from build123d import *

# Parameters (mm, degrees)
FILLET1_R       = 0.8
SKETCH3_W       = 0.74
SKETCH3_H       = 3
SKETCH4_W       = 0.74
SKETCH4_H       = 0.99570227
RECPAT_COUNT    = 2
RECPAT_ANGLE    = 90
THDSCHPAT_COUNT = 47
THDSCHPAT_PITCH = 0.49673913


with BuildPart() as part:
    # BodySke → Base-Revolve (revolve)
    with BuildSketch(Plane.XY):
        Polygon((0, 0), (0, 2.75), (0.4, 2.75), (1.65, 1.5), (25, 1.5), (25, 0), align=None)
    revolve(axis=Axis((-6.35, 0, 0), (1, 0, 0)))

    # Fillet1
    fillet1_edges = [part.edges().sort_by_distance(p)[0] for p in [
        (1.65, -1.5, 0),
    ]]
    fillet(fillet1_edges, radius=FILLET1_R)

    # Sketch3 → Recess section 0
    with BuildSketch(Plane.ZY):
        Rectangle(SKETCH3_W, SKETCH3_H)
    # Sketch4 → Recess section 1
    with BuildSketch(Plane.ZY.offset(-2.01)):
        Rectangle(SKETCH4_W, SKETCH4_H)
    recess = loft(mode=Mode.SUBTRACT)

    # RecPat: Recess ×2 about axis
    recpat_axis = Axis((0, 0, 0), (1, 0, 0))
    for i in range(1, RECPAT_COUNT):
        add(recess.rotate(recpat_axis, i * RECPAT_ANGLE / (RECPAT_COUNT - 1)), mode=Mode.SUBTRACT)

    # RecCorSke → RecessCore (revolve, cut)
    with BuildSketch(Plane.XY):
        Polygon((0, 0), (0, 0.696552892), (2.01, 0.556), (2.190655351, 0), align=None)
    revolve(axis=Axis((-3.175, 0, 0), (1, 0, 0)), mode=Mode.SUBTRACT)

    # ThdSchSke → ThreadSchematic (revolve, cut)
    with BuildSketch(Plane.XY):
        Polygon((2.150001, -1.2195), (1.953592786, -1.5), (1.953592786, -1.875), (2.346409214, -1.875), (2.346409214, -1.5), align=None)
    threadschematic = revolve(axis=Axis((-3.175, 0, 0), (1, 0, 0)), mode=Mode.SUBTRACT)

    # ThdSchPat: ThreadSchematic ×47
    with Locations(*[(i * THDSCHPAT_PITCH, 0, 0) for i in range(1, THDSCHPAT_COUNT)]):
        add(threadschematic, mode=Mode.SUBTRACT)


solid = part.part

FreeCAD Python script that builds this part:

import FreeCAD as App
import Part
import Sketcher
Q = App.Units.Quantity


def edges_at(feature, points):
    """Names of the edges that pass closest to the given points."""
    edges = feature.Shape.Edges
    near = lambda p: min(range(len(edges)), key=lambda i: edges[i].distToShape(Part.Vertex(*p))[0])
    return sorted({f"Edge{near(p) + 1}" for p in points})

doc = App.newDocument("Part")
body = doc.addObject("PartDesign::Body", "Body")

sketch1 = body.newObject("Sketcher::SketchObject", "Sketch")
sketch1.AttachmentSupport = (doc.getObject("XY_Plane"), [""])
sketch1.MapMode = "FlatFace"
sketch1.addGeometry([
    Part.LineSegment(App.Vector(0, 2.75, 0), App.Vector(0, 0, 0)),
    Part.LineSegment(App.Vector(0, 0, 0), App.Vector(25, 0, 0)),
    Part.LineSegment(App.Vector(25, 0, 0), App.Vector(25, 1.5, 0)),
    Part.LineSegment(App.Vector(25, 1.5, 0), App.Vector(1.65, 1.5, 0)),
    Part.LineSegment(App.Vector(1.65, 1.5, 0), App.Vector(0.4, 2.75, 0)),
    Part.LineSegment(App.Vector(0.4, 2.75, 0), App.Vector(0, 2.75, 0)),
], False)
sketch1.addConstraint([
    Sketcher.Constraint("Coincident", 0, 2, 1, 1),
    Sketcher.Constraint("Coincident", 1, 2, 2, 1),
    Sketcher.Constraint("Coincident", 2, 2, 3, 1),
    Sketcher.Constraint("Coincident", 3, 2, 4, 1),
    Sketcher.Constraint("Coincident", 4, 2, 5, 1),
    Sketcher.Constraint("Coincident", 5, 2, 0, 1),
    Sketcher.Constraint("Vertical", 0),
    Sketcher.Constraint("Horizontal", 1),
    Sketcher.Constraint("Vertical", 2),
    Sketcher.Constraint("Horizontal", 3),
    Sketcher.Constraint("Horizontal", 5),
    Sketcher.Constraint("Coincident", 0, 2, -1, 1),
    Sketcher.Constraint("DistanceX", 1, 1, 1, 2, Q("25 mm")),
    Sketcher.Constraint("Angle", 4, Q("135 deg")),
    Sketcher.Constraint("DistanceX", 5, 2, 5, 1, Q("0.4 mm")),
    Sketcher.Constraint("DistanceY", 2, 1, 2, 2, Q("1.5 mm")),
    Sketcher.Constraint("DistanceX", 3, 2, 3, 1, Q("23.35 mm")),
])
revolution = body.newObject("PartDesign::Revolution", "Revolution")
revolution.Profile = sketch1
revolution.ReferenceAxis = (sketch1, ["H_Axis"])
revolution.Angle = 360
doc.recompute()

fillet = body.newObject("PartDesign::Fillet", "Fillet")
fillet.Base = (revolution, edges_at(revolution, [(1.65, -1.5, 0)]))
fillet.Radius = 0.8

sketch2 = body.newObject("Sketcher::SketchObject", "Sketch001")
sketch2.AttachmentSupport = (doc.getObject("YZ_Plane"), [""])
sketch2.MapMode = "FlatFace"
sketch2.addGeometry([
    Part.LineSegment(App.Vector(1.5, -0.4, 0), App.Vector(-1.5, -0.4, 0)),
    Part.LineSegment(App.Vector(-1.5, -0.4, 0), App.Vector(-1.5, 0.4, 0)),
    Part.LineSegment(App.Vector(-1.5, 0.4, 0), App.Vector(1.5, 0.4, 0)),
    Part.LineSegment(App.Vector(1.5, 0.4, 0), App.Vector(1.5, -0.4, 0)),
], False)
sketch2.addConstraint([
    Sketcher.Constraint("Coincident", 0, 2, 1, 1),
    Sketcher.Constraint("Coincident", 1, 2, 2, 1),
    Sketcher.Constraint("Coincident", 2, 2, 3, 1),
    Sketcher.Constraint("Coincident", 3, 2, 0, 1),
    Sketcher.Constraint("Horizontal", 0),
    Sketcher.Constraint("Vertical", 1),
    Sketcher.Constraint("Horizontal", 2),
    Sketcher.Constraint("Vertical", 3),
    Sketcher.Constraint("Symmetric", 0, 2, 2, 2, -1, 1),
    Sketcher.Constraint("DistanceX", 0, 2, 0, 1, Q("3 mm")),
    Sketcher.Constraint("DistanceY", 1, 1, 1, 2, Q("0.74 mm")),
])

sketch3 = body.newObject("Sketcher::SketchObject", "Sketch002")
sketch3.AttachmentSupport = (doc.getObject("YZ_Plane"), [""])
sketch3.MapMode = "FlatFace"
sketch3.AttachmentOffset = App.Placement(App.Vector(0, 0, 2.01), App.Rotation())
sketch3.addGeometry([
    Part.LineSegment(App.Vector(0.5, -0.4, 0), App.Vector(-0.5, -0.4, 0)),
    Part.LineSegment(App.Vector(-0.5, -0.4, 0), App.Vector(-0.5, 0.4, 0)),
    Part.LineSegment(App.Vector(-0.5, 0.4, 0), App.Vector(0.5, 0.4, 0)),
    Part.LineSegment(App.Vector(0.5, 0.4, 0), App.Vector(0.5, -0.4, 0)),
], False)
sketch3.addConstraint([
    Sketcher.Constraint("Coincident", 0, 2, 1, 1),
    Sketcher.Constraint("Coincident", 1, 2, 2, 1),
    Sketcher.Constraint("Coincident", 2, 2, 3, 1),
    Sketcher.Constraint("Coincident", 3, 2, 0, 1),
    Sketcher.Constraint("Horizontal", 0),
    Sketcher.Constraint("Vertical", 1),
    Sketcher.Constraint("Horizontal", 2),
    Sketcher.Constraint("Vertical", 3),
    Sketcher.Constraint("Symmetric", 0, 2, 2, 2, -1, 1),
    Sketcher.Constraint("DistanceY", 1, 1, 1, 2, Q("0.74 mm")),
    Sketcher.Constraint("DistanceX", 0, 2, 0, 1, Q("0.995702 mm")),
])

subtractiveloft = body.newObject("PartDesign::SubtractiveLoft", "SubtractiveLoft")
subtractiveloft.Profile = sketch2
subtractiveloft.Sections = [sketch3]
doc.recompute()

polarpattern = body.newObject("PartDesign::PolarPattern", "PolarPattern")
polarpattern.Originals = [subtractiveloft]
polarpattern.Axis = (doc.getObject("X_Axis"), [""])
polarpattern.Angle = 90
polarpattern.Occurrences = 2
body.Tip = polarpattern

sketch4 = body.newObject("Sketcher::SketchObject", "Sketch003")
sketch4.AttachmentSupport = (doc.getObject("XY_Plane"), [""])
sketch4.MapMode = "FlatFace"
sketch4.addGeometry([
    Part.LineSegment(App.Vector(0, 0.7, 0), App.Vector(0, 0, 0)),
    Part.LineSegment(App.Vector(0, 0, 0), App.Vector(2.2, 0, 0)),
    Part.LineSegment(App.Vector(2.2, 0, 0), App.Vector(2, 0.6, 0)),
    Part.LineSegment(App.Vector(2, 0.6, 0), App.Vector(0, 0.7, 0)),
], False)
sketch4.addConstraint([
    Sketcher.Constraint("Coincident", 0, 2, 1, 1),
    Sketcher.Constraint("Coincident", 1, 2, 2, 1),
    Sketcher.Constraint("Coincident", 2, 2, 3, 1),
    Sketcher.Constraint("Coincident", 3, 2, 0, 1),
    Sketcher.Constraint("Vertical", 0),
    Sketcher.Constraint("Horizontal", 1),
    Sketcher.Constraint("Coincident", 0, 2, -1, 1),
    Sketcher.Constraint("Angle", 2, Q("108 deg")),
    Sketcher.Constraint("Angle", 3, Q("176 deg")),
    Sketcher.Constraint("DistanceX", -1, 1, 2, 2, Q("2.01 mm")),
    Sketcher.Constraint("DistanceY", -1, 1, 2, 2, Q("0.556 mm")),
])
groove = body.newObject("PartDesign::Groove", "Groove")
groove.Profile = sketch4
groove.ReferenceAxis = (sketch4, ["H_Axis"])
groove.Angle = 360

sketch5 = body.newObject("Sketcher::SketchObject", "Sketch004")
sketch5.AttachmentSupport = (doc.getObject("XY_Plane"), [""])
sketch5.MapMode = "FlatFace"
sketch5.addGeometry([
    Part.LineSegment(App.Vector(2.15, -1.22, 0), App.Vector(1.95, -1.5, 0)),
    Part.LineSegment(App.Vector(1.95, -1.5, 0), App.Vector(1.95, -1.88, 0)),
    Part.LineSegment(App.Vector(1.95, -1.88, 0), App.Vector(2.35, -1.88, 0)),
    Part.LineSegment(App.Vector(2.35, -1.88, 0), App.Vector(2.35, -1.5, 0)),
    Part.LineSegment(App.Vector(2.35, -1.5, 0), App.Vector(2.15, -1.22, 0)),
], False)
sketch5.addConstraint([
    Sketcher.Constraint("Coincident", 0, 2, 1, 1),
    Sketcher.Constraint("Coincident", 1, 2, 2, 1),
    Sketcher.Constraint("Coincident", 2, 2, 3, 1),
    Sketcher.Constraint("Coincident", 3, 2, 4, 1),
    Sketcher.Constraint("Coincident", 4, 2, 0, 1),
    Sketcher.Constraint("Vertical", 1),
    Sketcher.Constraint("Horizontal", 2),
    Sketcher.Constraint("Vertical", 3),
    Sketcher.Constraint("Horizontal", 0, 2, 3, 2),
    Sketcher.Constraint("Equal", 0, 4),
    Sketcher.Constraint("Angle", 0, Q("-125 deg")),
    Sketcher.Constraint("DistanceY", 0, 2, -1, 1, Q("1.5 mm")),
    Sketcher.Constraint("DistanceY", 1, 2, 1, 1, Q("0.375 mm")),
    Sketcher.Constraint("DistanceX", -1, 1, 4, 2, Q("2.150001 mm")),
    Sketcher.Constraint("DistanceY", 4, 2, -1, 1, Q("1.2195 mm")),
])
groove2 = body.newObject("PartDesign::Groove", "Groove001")
groove2.Profile = sketch5
groove2.ReferenceAxis = (sketch5, ["H_Axis"])
groove2.Angle = 360
doc.recompute()

linearpattern = body.newObject("PartDesign::LinearPattern", "LinearPattern")
linearpattern.Originals = [groove2]
linearpattern.Direction = (doc.getObject("X_Axis"), [""])
linearpattern.Mode = "offset"
linearpattern.Offset = 0.496739
linearpattern.Occurrences = 47
body.Tip = linearpattern

doc.recompute()
